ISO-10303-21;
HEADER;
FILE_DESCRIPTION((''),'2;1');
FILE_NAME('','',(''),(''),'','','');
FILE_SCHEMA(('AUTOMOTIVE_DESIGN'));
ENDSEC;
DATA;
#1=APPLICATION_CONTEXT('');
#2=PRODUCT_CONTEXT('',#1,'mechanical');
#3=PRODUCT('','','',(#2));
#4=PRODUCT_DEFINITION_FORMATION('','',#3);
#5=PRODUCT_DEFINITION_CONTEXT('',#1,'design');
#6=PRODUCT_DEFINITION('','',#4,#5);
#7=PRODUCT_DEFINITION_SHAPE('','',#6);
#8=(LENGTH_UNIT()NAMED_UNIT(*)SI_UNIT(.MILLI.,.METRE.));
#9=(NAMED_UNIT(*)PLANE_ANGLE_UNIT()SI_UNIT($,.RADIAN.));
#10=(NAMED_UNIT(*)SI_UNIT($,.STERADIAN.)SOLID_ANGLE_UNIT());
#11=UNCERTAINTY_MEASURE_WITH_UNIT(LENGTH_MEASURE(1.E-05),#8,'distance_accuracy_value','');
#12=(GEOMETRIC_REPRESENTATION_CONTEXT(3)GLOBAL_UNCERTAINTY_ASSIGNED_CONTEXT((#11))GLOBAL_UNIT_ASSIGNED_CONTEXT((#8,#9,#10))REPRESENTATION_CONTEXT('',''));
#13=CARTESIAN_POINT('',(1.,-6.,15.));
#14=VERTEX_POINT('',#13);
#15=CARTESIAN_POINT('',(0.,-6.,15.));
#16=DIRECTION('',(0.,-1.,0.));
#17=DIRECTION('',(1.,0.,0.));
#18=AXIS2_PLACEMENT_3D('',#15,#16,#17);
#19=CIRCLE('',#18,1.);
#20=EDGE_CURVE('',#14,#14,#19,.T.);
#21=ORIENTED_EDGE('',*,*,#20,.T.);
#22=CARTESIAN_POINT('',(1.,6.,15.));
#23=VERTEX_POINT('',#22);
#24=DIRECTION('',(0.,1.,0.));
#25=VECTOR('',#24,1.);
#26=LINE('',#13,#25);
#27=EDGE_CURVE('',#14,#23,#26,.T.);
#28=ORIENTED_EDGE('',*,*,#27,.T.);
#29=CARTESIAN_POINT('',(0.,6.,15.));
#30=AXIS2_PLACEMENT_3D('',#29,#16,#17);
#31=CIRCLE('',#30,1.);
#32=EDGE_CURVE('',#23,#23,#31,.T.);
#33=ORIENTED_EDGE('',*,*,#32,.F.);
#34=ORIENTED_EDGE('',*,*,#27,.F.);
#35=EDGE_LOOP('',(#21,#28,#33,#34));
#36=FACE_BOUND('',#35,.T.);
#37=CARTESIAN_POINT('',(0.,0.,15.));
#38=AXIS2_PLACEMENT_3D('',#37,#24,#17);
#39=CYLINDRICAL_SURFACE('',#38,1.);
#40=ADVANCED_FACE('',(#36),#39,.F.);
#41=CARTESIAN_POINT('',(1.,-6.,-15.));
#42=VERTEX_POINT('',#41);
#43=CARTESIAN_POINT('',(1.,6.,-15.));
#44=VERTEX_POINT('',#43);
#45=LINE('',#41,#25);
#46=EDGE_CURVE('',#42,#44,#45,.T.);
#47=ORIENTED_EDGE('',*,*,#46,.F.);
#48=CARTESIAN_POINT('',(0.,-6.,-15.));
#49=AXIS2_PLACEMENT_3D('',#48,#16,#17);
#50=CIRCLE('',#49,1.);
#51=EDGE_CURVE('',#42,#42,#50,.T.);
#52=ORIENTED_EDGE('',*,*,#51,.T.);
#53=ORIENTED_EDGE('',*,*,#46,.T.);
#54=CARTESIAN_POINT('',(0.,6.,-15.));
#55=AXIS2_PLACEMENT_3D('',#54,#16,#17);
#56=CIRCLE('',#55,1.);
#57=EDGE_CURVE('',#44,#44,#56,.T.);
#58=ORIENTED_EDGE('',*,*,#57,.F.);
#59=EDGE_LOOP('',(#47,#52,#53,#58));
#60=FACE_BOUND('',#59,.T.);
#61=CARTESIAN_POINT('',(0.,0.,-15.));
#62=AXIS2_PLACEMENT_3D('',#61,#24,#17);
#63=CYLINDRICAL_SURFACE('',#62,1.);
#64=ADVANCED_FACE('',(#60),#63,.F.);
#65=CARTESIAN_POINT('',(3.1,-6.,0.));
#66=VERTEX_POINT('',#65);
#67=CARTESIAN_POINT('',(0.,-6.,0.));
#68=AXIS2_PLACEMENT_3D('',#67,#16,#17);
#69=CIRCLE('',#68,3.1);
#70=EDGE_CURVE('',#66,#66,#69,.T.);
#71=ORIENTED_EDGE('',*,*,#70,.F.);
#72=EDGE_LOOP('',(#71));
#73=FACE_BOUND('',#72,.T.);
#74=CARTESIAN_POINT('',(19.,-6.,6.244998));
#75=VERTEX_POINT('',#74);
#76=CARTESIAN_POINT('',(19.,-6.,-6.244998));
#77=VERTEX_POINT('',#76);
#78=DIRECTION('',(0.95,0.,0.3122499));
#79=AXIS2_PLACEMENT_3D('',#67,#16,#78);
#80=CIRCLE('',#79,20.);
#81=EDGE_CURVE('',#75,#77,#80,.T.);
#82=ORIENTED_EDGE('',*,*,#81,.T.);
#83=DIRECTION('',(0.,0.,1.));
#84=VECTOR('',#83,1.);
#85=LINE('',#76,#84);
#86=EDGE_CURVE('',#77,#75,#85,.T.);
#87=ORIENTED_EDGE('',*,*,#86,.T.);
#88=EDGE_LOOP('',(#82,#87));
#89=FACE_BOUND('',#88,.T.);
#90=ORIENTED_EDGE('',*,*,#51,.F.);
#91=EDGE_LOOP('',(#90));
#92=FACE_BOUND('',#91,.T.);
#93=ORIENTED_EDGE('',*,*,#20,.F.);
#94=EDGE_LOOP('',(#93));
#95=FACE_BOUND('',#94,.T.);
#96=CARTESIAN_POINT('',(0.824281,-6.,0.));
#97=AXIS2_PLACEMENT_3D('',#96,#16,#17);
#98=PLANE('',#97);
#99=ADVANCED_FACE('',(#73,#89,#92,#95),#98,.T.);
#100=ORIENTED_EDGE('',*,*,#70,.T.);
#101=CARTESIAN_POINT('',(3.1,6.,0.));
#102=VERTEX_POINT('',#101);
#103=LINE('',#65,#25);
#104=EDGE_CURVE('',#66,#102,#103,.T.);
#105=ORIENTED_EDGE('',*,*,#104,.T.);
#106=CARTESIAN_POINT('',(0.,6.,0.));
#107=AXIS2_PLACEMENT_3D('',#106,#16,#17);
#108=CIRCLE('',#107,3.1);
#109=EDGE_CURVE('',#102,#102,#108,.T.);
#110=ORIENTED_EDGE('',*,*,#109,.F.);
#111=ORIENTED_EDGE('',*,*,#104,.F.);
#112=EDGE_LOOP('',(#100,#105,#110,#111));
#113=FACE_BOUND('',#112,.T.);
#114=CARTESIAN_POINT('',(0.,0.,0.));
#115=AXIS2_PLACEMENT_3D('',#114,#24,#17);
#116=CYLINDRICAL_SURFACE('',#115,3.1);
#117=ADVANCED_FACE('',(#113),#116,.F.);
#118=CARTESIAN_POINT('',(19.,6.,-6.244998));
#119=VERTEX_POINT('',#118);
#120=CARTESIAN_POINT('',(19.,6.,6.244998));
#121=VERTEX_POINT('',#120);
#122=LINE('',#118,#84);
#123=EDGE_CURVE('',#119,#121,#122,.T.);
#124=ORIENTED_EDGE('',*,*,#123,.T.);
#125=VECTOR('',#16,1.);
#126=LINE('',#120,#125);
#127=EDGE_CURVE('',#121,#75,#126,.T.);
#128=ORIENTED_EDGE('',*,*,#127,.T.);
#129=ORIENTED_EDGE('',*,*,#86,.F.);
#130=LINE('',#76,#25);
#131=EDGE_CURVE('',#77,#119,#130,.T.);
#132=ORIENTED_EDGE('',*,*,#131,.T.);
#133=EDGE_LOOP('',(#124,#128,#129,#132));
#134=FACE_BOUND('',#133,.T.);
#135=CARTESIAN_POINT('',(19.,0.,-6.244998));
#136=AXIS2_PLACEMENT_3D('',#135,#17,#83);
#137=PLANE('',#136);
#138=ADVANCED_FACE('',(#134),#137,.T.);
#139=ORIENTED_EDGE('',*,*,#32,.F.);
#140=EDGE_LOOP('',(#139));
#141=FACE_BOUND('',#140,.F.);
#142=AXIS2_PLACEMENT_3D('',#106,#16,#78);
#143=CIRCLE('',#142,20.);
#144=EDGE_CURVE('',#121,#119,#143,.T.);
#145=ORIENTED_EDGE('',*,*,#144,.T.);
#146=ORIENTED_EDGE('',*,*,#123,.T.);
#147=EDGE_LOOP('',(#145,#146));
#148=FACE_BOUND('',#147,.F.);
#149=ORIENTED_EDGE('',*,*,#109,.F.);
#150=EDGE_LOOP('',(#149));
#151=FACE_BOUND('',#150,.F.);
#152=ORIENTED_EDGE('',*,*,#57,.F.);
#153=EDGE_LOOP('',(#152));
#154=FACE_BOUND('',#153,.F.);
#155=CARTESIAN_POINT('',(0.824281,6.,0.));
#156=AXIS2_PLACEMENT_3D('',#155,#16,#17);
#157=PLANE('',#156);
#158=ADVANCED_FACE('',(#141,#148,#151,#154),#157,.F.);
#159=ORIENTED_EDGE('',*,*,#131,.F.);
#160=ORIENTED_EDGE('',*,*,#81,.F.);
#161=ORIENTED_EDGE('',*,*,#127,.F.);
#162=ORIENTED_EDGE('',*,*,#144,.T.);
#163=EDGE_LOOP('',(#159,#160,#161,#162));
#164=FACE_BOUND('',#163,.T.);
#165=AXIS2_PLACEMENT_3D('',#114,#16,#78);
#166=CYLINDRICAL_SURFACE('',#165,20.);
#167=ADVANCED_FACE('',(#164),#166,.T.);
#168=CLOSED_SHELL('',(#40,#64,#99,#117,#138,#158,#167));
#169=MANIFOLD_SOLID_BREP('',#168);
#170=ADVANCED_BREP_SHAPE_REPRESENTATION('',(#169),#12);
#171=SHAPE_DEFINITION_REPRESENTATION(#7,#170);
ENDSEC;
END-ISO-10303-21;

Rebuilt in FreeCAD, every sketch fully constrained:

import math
import FreeCAD as App
import Part
import Sketcher

V = App.Vector
Q = App.Units.Quantity

doc = App.newDocument("Part")
body = doc.addObject("PartDesign::Body", "Body")

# Sketch on XZ plane
sketch1 = body.newObject("Sketcher::SketchObject", "Sketch")
sketch1.AttachmentSupport = (doc.getObject("XZ_Plane"), [""])
sketch1.MapMode = "FlatFace"
sketch1.addGeometry([
    Part.LineSegment(V(19, -6.2, 0), V(19, 6.2, 0)),  # 0
    Part.ArcOfCircle(Part.Circle(V(0, 0, 0), V(0, 0, 1), 20), math.radians(18), math.radians(342)),  # 1
    Part.Circle(V(0, -15, 0), V(0, 0, 1), 1),  # 2
    Part.Circle(V(0, 0, 0), V(0, 0, 1), 3.1),  # 3
    Part.Circle(V(0, 15, 0), V(0, 0, 1), 1),  # 4
], False)
sketch1.addConstraint([
    Sketcher.Constraint("Coincident", 0, 1, 1, 2),
    Sketcher.Constraint("Coincident", 1, 1, 0, 2),
    Sketcher.Constraint("Vertical", 0),
    Sketcher.Constraint("Coincident", 1, 3, -1, 1),
    Sketcher.Constraint("Coincident", 3, 3, -1, 1),
    Sketcher.Constraint("Equal", 2, 4),
    Sketcher.Constraint("Symmetric", 2, 3, 4, 3, -1, 1),
    Sketcher.Constraint("PointOnObject", 2, 3, -2),
    Sketcher.Constraint("Diameter", 2, Q("2 mm")),
    Sketcher.Constraint("Radius", 1, Q("20 mm")),
    Sketcher.Constraint("Diameter", 3, Q("6.2 mm")),
    Sketcher.Constraint("DistanceY", 2, 3, -1, 1, Q("15 mm")),
    Sketcher.Constraint("DistanceX", -1, 1, 0, 1, Q("19 mm")),
])
pad1 = body.newObject("PartDesign::Pad", "Pad")
pad1.Profile = sketch1
pad1.Length = 12
pad1.Midplane = True

doc.recompute()
